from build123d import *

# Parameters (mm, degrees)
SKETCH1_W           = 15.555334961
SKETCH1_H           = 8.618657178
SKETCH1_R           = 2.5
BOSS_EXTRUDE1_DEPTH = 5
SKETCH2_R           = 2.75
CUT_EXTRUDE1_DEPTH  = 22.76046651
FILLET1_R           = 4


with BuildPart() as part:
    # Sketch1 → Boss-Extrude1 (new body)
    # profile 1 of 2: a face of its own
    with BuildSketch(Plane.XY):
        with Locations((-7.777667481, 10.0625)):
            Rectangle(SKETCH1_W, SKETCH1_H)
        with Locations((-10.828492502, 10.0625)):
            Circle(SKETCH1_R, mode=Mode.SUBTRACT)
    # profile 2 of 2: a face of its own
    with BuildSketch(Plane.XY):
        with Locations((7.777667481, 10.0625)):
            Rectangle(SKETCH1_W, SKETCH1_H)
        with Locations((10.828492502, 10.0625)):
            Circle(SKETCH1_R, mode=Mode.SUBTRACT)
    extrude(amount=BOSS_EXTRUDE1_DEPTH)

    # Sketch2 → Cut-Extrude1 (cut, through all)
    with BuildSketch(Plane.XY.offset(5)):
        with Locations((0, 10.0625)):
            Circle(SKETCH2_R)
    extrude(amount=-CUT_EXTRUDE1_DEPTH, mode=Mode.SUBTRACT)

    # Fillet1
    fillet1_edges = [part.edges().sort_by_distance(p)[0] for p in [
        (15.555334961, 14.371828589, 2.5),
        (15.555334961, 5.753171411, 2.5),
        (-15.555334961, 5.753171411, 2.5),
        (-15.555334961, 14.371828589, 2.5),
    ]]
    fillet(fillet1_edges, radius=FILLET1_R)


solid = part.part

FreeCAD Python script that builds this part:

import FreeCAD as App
import Part
import Sketcher


def edges_at(feature, points):
    """Names of the edges that pass closest to the given points."""
    edges = feature.Shape.Edges
    near = lambda p: min(range(len(edges)), key=lambda i: edges[i].distToShape(Part.Vertex(*p))[0])
    return sorted({f"Edge{near(p) + 1}" for p in points})


def add_polygon(sketch, points):
    """Adds a closed chain of lines whose ends are joined by coincident constraints."""
    first, n = sketch.GeometryCount, len(points)
    for a, b in zip(points, points[1:] + points[:1]):
        sketch.addGeometry(Part.LineSegment(App.Vector(*a, 0), App.Vector(*b, 0)), False)
    for i in range(n):
        sketch.addConstraint(Sketcher.Constraint("Coincident", first + i, 2, first + (i + 1) % n, 1))

doc = App.newDocument("Part")
params = doc.addObject("Spreadsheet::Sheet", "Params")
for row, (alias, value) in enumerate([
    ("sketch1_diameter", "5 mm"),
    ("pad1_length", "5 mm"),
    ("sketch2_diameter", "5.5 mm"),
    ("fillet_radius", "4 mm"),
], start=1):
    params.set(f"A{row}", alias)
    params.set(f"B{row}", "=" + value)
    params.setAlias(f"B{row}", alias)

body = doc.addObject("PartDesign::Body", "Body")

sketch1 = doc.addObject("Sketcher::SketchObject", "Sketch")
body.addObject(sketch1)
sketch1.AttachmentSupport = (doc.XY_Plane, [""])
sketch1.MapMode = "FlatFace"
add_polygon(sketch1, [(-15.6, 14.4), (-15.6, 5.8), (15.6, 5.8), (15.6, 14.4)])
sketch1.addGeometry(Part.Circle(App.Vector(-10.8, 10.1, 0), App.Vector(0, 0, 1), 2.5), False)
sketch1.addGeometry(Part.Circle(App.Vector(10.8, 10.1, 0), App.Vector(0, 0, 1), 2.5), False)
sketch1.addConstraint([
    Sketcher.Constraint("Vertical", 0),
    Sketcher.Constraint("Horizontal", 1),
    Sketcher.Constraint("Vertical", 2),
    Sketcher.Constraint("Horizontal", 3),
    Sketcher.Constraint("Equal", 4, 5),
    Sketcher.Constraint("Symmetric", 4, 3, 5, 3, -2),
    Sketcher.Constraint("Diameter", 4, 5.0),
    Sketcher.Constraint("DistanceX", 1, 1, 1, 2, 31.11067),
    Sketcher.Constraint("DistanceY", -1, 1, 4, 3, 10.0625),
    Sketcher.Constraint("DistanceY", 0, 2, 0, 1, 8.618657),
    Sketcher.Constraint("DistanceY", -1, 1, 0, 2, 5.753171),
    Sketcher.Constraint("DistanceX", 4, 3, -1, 1, 10.828493),
    Sketcher.Constraint("DistanceX", 0, 2, -1, 1, 15.555335),
])
sketch1.setExpression("Constraints[10]", "Params.sketch1_diameter")
pad1 = doc.addObject("PartDesign::Pad", "Pad")
body.addObject(pad1)
pad1.Profile = sketch1
pad1.setExpression("Length", "Params.pad1_length")

sketch2 = doc.addObject("Sketcher::SketchObject", "Sketch001")
body.addObject(sketch2)
sketch2.AttachmentSupport = (doc.XY_Plane, [""])
sketch2.MapMode = "FlatFace"
sketch2.AttachmentOffset = App.Placement(App.Vector(0, 0, 5), App.Rotation())
sketch2.addGeometry(Part.Circle(App.Vector(0, 10.1, 0), App.Vector(0, 0, 1), 2.8), False)
sketch2.addConstraint([
    Sketcher.Constraint("PointOnObject", 0, 3, -2),
    Sketcher.Constraint("Diameter", 0, 5.5),
    Sketcher.Constraint("DistanceY", -1, 1, 0, 3, 10.0625),
])
sketch2.setExpression("Constraints[1]", "Params.sketch2_diameter")
pocket1 = doc.addObject("PartDesign::Pocket", "Pocket")
body.addObject(pocket1)
pocket1.Profile = sketch2
pocket1.Type = "ThroughAll"
doc.recompute()

fillet = doc.addObject("PartDesign::Fillet", "Fillet")
body.addObject(fillet)
fillet.Base = (pocket1, edges_at(pocket1, [
    (15.555, 14.372, 2.5),
    (15.555, 5.753, 2.5),
    (-15.555, 5.753, 2.5),
    (-15.555, 14.372, 2.5),
]))
fillet.setExpression("Radius", "Params.fillet_radius")

doc.recompute()
